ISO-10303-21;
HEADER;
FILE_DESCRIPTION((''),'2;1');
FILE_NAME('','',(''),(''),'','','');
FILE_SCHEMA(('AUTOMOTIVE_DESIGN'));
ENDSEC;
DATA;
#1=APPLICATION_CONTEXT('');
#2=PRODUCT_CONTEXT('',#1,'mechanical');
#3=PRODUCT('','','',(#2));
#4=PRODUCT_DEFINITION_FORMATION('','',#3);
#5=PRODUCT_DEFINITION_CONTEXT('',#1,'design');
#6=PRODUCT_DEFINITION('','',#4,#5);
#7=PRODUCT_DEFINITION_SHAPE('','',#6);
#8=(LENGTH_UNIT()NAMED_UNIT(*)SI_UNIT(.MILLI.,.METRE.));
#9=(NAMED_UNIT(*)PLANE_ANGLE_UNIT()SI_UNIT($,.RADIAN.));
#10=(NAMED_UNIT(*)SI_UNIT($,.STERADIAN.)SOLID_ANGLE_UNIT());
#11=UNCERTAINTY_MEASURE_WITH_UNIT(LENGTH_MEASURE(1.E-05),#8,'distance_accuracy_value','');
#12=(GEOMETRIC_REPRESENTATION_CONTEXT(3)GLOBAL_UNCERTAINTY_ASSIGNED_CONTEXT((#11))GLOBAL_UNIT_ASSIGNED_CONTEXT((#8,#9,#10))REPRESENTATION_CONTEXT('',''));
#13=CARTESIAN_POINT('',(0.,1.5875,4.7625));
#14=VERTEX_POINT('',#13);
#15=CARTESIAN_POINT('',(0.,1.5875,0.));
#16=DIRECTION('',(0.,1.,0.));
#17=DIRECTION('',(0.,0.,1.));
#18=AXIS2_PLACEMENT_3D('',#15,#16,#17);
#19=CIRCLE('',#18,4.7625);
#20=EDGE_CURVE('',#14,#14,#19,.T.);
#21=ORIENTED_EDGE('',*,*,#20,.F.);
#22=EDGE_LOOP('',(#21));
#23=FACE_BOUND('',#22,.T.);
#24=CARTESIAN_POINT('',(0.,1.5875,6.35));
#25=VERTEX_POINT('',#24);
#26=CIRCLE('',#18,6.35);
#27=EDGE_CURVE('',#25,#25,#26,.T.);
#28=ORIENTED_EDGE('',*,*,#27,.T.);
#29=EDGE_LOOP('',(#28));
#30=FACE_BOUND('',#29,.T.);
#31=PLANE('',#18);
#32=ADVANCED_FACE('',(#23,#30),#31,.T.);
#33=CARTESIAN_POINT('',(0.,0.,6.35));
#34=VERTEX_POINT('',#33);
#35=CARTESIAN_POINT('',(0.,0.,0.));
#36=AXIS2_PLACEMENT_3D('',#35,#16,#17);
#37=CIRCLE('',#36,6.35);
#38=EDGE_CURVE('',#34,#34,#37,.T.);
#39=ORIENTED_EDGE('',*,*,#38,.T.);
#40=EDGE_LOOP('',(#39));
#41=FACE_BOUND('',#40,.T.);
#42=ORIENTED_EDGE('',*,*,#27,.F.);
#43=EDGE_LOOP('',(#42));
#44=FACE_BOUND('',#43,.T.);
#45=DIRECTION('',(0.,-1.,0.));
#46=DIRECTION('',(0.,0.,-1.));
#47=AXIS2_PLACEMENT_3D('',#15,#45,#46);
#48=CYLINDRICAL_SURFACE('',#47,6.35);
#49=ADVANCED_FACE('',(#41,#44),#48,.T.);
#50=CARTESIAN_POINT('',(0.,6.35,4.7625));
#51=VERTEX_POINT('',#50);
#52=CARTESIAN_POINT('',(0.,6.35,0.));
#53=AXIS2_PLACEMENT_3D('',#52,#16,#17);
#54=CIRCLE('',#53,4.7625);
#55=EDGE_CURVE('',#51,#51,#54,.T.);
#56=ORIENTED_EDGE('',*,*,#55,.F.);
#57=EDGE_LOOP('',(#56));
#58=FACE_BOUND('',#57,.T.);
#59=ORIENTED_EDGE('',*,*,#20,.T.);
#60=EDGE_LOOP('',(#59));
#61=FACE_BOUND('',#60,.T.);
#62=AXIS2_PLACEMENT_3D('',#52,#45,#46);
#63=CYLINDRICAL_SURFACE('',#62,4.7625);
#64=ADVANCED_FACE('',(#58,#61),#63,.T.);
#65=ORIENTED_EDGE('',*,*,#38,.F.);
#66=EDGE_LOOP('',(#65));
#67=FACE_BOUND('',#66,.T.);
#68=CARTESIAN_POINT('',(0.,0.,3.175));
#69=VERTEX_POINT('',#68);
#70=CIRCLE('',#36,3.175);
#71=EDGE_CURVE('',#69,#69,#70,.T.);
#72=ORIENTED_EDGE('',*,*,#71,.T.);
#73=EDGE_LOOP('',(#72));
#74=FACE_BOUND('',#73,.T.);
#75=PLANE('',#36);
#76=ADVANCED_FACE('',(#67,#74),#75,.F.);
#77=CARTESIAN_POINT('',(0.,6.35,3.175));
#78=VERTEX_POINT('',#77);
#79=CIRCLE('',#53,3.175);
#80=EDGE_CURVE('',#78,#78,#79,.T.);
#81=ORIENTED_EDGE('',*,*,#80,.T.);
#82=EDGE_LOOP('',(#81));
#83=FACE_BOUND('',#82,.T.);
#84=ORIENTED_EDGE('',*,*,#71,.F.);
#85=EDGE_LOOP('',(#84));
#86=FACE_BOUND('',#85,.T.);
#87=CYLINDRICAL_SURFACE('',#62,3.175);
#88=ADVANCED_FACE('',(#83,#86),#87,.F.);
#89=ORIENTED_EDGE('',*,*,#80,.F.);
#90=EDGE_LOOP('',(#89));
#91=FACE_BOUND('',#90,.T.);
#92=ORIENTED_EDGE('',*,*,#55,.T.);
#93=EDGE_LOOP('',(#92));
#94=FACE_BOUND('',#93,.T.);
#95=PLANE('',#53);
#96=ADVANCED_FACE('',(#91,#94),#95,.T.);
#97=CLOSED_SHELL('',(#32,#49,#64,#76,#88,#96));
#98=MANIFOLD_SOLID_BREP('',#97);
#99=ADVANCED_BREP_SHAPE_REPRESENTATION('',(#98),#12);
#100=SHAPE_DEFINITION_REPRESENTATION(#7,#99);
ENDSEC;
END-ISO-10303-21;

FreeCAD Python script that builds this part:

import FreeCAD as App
import Part
import Sketcher
from FreeCAD import Vector
Q = App.Units.Quantity

doc = App.newDocument("Part")
body = doc.addObject("PartDesign::Body", "Body")

# Sketch on XZ plane
sketch1 = body.newObject("Sketcher::SketchObject", "Sketch")
sketch1.AttachmentSupport = (doc.getObject("XZ_Plane"), [""])
sketch1.MapMode = "FlatFace"
sketch1.addGeometry([
    Part.Circle(Vector(0, 0, 0), Vector(0, 0, 1), 4.8),
    Part.Circle(Vector(0, 0, 0), Vector(0, 0, 1), 3.2),
], False)
sketch1.addConstraint([
    Sketcher.Constraint("Coincident", 0, 3, -1, 1),
    Sketcher.Constraint("Coincident", 1, 3, -1, 1),
    Sketcher.Constraint("Diameter", 1, Q("0.25 in")),
    Sketcher.Constraint("Diameter", 0, Q("0.375 in")),
])
pad1 = body.newObject("PartDesign::Pad", "Pad")
pad1.Profile = sketch1
pad1.Length = Q("0.25 in")
pad1.Reversed = True

# Sketch on XZ plane
sketch2 = body.newObject("Sketcher::SketchObject", "Sketch001")
sketch2.AttachmentSupport = (doc.getObject("XZ_Plane"), [""])
sketch2.MapMode = "FlatFace"
sketch2.addGeometry([
    Part.Circle(Vector(0, 0, 0), Vector(0, 0, 1), 6.3),
    Part.Circle(Vector(0, 0, 0), Vector(0, 0, 1), 4.8),
], False)
sketch2.addConstraint([
    Sketcher.Constraint("Coincident", 0, 3, -1, 1),
    Sketcher.Constraint("Coincident", 1, 3, -1, 1),
    Sketcher.Constraint("Diameter", 0, Q("0.5 in")),
    Sketcher.Constraint("Diameter", 1, Q("0.375 in")),
])
pad2 = body.newObject("PartDesign::Pad", "Pad001")
pad2.Profile = sketch2
pad2.Length = Q("0.0625 in")
pad2.Reversed = True

doc.recompute()
